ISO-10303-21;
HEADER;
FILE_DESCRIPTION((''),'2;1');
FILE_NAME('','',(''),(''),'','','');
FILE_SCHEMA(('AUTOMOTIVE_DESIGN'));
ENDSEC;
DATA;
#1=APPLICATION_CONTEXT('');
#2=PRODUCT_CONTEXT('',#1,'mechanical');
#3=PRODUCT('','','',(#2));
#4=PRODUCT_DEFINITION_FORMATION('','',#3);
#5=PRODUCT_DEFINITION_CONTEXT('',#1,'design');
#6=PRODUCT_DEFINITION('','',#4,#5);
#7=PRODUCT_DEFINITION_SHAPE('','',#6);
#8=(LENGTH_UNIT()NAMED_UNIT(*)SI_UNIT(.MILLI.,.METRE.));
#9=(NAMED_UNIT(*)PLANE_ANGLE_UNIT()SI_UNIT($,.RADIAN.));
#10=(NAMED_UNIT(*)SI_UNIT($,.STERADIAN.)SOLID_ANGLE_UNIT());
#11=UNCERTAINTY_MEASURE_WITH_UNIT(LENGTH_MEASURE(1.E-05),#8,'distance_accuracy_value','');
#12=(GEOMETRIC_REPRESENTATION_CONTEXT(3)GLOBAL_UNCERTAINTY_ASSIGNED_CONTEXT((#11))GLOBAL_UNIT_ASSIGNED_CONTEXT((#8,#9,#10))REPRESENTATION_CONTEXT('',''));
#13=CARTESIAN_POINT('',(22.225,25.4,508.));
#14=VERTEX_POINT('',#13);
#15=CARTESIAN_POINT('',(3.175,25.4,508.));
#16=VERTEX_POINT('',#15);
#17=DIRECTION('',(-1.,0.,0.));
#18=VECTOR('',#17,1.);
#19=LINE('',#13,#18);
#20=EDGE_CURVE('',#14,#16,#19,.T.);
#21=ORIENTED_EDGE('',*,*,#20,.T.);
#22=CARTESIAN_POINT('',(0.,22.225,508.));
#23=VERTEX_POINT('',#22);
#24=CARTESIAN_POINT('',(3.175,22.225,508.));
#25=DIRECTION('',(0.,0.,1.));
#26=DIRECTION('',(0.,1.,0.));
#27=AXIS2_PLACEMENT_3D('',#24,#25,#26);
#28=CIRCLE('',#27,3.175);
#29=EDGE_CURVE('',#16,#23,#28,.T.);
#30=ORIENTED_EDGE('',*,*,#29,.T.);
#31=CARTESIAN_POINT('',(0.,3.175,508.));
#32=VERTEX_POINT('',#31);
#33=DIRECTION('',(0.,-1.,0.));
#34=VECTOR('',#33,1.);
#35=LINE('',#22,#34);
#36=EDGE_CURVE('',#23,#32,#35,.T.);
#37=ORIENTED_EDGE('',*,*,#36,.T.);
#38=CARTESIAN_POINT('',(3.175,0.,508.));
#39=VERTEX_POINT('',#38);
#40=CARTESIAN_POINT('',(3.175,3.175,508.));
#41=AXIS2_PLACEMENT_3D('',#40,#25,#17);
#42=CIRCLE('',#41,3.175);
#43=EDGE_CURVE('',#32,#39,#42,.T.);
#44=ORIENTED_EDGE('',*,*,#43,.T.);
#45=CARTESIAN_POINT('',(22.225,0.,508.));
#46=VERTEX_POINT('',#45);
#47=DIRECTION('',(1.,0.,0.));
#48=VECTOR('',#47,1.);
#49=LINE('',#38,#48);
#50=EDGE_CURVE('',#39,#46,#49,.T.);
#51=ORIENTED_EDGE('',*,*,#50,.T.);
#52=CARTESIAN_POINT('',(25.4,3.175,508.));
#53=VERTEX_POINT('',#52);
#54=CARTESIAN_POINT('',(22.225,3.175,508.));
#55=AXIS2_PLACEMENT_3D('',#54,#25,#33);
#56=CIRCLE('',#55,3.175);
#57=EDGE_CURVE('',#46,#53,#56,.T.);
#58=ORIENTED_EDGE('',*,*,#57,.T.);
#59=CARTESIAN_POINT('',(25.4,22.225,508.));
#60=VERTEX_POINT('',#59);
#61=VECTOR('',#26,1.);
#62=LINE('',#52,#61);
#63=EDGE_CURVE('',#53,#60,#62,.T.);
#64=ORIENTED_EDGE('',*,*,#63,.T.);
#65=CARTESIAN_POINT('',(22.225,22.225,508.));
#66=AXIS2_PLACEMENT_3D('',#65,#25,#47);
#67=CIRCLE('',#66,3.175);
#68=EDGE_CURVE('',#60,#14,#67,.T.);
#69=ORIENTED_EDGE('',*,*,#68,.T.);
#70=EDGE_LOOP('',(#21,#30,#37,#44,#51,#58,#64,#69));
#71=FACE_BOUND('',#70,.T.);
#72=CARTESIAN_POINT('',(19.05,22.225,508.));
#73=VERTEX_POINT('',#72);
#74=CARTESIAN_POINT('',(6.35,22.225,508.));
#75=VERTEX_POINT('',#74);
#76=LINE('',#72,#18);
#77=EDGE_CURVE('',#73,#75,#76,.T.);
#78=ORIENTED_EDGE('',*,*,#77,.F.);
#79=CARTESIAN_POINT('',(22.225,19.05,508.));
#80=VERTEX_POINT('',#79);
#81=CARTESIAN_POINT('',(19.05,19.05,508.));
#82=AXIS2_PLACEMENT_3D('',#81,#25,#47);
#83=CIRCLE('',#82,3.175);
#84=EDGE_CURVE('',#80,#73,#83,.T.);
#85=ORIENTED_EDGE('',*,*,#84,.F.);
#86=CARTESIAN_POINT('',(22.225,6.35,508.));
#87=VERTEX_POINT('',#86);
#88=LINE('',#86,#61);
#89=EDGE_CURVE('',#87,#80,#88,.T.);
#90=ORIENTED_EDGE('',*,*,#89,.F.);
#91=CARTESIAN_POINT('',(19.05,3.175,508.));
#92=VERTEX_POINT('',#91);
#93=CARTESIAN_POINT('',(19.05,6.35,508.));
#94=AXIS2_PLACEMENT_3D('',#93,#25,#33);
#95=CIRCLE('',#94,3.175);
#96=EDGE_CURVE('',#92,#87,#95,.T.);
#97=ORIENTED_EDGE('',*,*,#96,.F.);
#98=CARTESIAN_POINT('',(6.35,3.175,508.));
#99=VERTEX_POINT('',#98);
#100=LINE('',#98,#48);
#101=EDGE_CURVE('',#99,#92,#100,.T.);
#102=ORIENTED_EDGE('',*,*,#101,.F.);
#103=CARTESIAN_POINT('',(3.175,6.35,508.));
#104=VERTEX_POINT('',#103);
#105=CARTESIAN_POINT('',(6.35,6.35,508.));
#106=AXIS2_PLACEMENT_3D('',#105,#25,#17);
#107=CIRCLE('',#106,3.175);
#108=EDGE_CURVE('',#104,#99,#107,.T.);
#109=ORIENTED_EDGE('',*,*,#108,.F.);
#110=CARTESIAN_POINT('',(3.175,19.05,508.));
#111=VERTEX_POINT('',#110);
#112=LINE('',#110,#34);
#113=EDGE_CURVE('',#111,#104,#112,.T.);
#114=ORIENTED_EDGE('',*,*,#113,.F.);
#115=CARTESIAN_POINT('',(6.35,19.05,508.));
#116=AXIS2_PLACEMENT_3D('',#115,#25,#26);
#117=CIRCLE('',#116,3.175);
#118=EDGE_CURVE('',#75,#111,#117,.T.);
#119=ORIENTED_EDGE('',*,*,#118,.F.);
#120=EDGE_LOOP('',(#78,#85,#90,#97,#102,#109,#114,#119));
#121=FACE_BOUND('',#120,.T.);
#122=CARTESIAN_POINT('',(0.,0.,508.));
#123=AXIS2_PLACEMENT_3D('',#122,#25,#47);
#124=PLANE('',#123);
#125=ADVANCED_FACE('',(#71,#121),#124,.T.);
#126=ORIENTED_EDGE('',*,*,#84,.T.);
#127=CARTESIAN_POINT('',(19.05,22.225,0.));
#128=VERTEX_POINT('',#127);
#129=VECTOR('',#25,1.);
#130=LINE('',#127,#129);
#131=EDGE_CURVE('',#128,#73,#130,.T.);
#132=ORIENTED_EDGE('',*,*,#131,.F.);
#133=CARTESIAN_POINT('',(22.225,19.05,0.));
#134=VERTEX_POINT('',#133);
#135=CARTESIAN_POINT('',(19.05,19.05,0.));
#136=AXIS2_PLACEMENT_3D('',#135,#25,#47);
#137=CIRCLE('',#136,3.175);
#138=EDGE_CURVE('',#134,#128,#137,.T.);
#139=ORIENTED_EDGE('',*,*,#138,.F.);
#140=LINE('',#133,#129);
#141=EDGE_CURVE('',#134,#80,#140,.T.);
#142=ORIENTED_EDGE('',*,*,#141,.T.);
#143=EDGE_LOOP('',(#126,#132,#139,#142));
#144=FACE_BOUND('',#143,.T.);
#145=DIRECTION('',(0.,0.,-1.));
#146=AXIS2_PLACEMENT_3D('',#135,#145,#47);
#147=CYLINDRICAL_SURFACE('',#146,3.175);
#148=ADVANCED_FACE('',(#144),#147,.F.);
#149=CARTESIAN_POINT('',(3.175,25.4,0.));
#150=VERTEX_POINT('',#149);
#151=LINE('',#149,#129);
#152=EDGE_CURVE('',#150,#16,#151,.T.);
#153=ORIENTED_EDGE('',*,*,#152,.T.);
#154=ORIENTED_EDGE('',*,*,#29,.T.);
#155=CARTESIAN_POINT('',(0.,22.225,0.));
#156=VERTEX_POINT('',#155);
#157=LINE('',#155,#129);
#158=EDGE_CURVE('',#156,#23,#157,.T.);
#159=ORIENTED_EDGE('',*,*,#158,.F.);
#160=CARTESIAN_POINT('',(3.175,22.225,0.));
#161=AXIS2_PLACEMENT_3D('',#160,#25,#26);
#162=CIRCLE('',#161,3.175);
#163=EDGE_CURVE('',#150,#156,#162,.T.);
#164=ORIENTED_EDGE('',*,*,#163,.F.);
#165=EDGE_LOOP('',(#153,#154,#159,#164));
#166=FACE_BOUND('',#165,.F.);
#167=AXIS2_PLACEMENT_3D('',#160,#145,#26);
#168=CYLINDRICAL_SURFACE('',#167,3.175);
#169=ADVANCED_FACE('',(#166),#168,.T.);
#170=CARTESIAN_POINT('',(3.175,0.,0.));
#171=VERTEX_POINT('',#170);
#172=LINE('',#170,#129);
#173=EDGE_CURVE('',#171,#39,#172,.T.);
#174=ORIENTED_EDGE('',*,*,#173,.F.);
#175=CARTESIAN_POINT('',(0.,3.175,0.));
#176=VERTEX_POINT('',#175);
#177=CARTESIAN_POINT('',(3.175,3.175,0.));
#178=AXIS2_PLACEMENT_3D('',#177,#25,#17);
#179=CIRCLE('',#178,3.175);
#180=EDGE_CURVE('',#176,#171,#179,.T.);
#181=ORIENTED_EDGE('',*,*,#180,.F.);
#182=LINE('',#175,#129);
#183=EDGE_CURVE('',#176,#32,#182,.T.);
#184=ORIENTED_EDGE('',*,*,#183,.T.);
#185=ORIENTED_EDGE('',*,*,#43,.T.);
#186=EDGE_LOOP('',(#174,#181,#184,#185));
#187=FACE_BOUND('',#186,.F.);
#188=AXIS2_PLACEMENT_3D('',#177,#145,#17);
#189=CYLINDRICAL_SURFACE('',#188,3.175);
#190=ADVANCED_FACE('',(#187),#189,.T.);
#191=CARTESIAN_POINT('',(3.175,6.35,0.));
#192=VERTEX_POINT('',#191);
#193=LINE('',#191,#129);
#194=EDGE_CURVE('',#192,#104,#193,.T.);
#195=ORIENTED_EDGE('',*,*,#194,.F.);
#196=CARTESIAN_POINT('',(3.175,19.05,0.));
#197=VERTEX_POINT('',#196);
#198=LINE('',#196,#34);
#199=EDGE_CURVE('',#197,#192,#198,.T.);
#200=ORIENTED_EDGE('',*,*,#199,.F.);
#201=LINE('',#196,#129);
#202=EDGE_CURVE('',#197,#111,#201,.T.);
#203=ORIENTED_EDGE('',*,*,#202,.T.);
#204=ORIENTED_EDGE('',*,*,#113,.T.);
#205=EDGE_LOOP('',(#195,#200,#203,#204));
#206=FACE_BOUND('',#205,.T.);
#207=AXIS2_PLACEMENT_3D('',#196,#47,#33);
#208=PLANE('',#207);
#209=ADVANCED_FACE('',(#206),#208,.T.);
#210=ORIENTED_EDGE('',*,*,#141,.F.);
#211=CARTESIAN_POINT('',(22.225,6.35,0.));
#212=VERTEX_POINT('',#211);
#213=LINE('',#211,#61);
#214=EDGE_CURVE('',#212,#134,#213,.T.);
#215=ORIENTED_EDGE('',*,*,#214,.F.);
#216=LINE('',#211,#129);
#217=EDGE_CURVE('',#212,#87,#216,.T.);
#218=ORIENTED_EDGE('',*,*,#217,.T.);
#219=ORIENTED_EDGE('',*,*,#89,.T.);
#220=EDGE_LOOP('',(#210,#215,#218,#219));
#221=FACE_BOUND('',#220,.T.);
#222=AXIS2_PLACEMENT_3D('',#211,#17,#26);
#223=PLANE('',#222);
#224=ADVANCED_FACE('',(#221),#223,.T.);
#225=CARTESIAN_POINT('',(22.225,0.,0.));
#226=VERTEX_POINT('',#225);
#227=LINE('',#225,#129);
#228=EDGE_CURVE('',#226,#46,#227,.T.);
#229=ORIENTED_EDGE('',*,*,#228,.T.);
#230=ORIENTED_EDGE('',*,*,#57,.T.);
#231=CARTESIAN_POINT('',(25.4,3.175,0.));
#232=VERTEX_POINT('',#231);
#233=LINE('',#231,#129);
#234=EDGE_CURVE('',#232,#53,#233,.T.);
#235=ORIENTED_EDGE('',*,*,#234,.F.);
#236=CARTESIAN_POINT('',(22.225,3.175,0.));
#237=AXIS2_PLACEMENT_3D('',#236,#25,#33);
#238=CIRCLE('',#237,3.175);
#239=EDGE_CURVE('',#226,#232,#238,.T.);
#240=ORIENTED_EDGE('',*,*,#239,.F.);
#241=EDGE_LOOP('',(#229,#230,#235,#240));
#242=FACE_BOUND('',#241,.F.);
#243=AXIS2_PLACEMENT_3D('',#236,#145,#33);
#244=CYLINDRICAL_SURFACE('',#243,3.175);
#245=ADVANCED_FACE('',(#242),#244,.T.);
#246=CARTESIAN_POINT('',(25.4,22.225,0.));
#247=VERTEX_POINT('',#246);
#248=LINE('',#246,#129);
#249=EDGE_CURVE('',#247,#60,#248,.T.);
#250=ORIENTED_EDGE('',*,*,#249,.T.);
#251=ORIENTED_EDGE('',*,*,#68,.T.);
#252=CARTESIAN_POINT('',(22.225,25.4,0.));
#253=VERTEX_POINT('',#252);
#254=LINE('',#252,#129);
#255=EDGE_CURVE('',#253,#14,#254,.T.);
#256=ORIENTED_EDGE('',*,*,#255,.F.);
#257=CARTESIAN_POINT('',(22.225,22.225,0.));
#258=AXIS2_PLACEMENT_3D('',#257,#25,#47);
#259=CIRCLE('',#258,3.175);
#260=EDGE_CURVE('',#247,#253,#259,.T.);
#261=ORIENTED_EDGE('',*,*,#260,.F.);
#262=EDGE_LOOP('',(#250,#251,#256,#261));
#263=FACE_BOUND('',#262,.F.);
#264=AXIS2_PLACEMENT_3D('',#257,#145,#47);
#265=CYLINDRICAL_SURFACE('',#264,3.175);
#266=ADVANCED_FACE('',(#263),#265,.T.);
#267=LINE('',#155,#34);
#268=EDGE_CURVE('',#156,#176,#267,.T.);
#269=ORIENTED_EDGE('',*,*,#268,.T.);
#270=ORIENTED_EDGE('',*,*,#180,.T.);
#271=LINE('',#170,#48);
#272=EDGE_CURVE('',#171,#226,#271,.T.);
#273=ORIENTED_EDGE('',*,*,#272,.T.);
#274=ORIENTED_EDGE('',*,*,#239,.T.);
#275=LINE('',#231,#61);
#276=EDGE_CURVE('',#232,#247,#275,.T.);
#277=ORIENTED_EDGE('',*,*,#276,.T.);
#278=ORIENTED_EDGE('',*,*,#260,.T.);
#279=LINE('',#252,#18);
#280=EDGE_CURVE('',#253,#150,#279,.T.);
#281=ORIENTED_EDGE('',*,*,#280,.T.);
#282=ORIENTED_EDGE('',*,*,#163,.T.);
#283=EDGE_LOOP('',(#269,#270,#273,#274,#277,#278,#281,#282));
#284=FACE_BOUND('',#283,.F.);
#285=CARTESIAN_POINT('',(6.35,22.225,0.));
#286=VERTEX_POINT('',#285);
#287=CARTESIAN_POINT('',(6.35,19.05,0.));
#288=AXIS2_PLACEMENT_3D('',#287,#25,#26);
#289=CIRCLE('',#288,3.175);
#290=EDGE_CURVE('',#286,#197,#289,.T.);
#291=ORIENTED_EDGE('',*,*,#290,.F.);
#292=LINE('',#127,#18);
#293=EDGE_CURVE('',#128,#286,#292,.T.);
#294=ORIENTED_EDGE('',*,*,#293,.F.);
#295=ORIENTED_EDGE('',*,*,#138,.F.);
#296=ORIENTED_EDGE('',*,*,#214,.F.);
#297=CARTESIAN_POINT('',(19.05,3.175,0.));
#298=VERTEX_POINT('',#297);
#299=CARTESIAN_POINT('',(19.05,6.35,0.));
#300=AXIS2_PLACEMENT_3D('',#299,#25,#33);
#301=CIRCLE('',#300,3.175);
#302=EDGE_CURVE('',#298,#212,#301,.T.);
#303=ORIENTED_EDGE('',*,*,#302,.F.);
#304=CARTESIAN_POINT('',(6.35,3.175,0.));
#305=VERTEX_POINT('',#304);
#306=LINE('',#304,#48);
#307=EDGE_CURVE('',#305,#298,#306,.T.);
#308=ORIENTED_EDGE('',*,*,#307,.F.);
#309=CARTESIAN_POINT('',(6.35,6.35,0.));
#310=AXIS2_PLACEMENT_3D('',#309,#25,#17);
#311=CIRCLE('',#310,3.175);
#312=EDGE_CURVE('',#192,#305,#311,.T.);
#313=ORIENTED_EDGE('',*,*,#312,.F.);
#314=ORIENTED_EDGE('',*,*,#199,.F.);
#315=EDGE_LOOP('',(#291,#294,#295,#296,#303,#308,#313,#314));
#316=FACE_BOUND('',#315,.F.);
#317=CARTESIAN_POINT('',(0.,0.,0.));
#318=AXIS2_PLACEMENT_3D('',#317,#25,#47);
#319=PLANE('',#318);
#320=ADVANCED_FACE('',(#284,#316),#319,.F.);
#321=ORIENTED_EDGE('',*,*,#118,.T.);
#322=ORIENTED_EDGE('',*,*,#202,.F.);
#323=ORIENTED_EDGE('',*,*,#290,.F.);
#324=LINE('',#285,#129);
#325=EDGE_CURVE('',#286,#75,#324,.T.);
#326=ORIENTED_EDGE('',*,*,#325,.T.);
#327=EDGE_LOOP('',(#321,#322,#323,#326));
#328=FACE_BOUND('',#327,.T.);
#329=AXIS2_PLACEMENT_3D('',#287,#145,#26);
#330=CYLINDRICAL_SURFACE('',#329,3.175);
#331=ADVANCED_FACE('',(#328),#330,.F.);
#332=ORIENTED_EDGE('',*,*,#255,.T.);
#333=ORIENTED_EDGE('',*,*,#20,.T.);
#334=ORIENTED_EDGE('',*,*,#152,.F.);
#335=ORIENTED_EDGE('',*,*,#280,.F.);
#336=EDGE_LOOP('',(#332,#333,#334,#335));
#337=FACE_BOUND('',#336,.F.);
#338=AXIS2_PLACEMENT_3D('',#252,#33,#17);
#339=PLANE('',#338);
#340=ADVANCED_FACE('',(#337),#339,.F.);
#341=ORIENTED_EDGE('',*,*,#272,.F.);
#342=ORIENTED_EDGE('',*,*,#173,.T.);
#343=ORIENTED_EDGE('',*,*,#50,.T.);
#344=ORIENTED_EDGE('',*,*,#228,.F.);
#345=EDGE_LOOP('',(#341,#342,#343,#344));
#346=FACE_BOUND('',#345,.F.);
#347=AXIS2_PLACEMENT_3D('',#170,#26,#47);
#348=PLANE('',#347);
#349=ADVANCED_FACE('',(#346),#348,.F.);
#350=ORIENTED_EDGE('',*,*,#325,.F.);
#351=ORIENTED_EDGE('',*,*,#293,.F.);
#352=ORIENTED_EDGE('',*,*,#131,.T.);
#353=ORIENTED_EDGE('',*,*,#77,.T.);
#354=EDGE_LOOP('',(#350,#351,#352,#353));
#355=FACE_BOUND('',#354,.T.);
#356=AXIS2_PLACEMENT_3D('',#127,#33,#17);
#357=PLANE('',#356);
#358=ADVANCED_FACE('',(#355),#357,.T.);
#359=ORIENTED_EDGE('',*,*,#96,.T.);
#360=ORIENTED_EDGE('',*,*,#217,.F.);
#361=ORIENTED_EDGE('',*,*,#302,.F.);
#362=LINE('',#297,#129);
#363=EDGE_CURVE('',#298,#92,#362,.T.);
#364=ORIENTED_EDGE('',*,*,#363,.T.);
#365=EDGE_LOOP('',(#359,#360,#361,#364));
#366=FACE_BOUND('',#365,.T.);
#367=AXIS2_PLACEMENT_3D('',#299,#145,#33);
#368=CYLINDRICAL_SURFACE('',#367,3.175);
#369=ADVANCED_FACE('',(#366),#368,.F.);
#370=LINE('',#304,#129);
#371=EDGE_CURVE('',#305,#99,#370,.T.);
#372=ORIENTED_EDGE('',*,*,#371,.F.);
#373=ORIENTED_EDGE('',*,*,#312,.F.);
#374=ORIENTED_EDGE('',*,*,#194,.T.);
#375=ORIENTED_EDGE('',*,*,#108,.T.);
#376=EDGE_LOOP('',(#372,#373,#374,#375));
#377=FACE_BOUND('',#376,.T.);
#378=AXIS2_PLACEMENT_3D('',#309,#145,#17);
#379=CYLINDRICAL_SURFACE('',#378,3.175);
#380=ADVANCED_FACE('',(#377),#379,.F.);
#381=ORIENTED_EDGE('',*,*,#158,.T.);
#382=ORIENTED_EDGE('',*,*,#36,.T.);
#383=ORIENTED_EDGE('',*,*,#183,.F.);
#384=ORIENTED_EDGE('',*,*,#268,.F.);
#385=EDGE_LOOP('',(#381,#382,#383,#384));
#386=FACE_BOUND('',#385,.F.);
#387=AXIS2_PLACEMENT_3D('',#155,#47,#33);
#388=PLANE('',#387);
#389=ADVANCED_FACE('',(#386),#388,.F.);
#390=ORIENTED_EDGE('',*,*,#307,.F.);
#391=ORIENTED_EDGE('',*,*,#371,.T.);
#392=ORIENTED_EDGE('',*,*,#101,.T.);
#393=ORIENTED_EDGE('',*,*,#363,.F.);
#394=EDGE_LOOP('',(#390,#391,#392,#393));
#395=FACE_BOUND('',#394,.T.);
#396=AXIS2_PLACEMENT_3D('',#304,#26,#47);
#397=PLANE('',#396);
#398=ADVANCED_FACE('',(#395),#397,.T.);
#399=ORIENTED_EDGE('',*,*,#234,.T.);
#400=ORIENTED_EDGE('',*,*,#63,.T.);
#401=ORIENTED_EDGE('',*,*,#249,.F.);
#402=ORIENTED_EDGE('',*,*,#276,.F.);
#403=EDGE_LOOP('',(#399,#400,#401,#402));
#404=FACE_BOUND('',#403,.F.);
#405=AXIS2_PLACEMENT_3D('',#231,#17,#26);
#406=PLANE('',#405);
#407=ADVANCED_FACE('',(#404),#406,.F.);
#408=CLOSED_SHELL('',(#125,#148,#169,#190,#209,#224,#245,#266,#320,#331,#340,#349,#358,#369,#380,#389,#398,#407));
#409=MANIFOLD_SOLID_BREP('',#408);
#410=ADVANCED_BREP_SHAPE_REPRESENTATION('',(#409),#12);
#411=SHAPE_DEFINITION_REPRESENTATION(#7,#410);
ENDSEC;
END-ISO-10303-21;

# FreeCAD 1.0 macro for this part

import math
import FreeCAD as App
import Part
import Sketcher
from FreeCAD import Vector
Q = App.Units.Quantity

doc = App.newDocument("Part")
params = doc.addObject("Spreadsheet::Sheet", "Params")
for row, (alias, value) in enumerate([
    ("sketch1_radius", "0.125 in"),
    ("pad1_length", "20 in"),
], start=1):
    params.set(f"A{row}", alias)
    params.set(f"B{row}", "=" + value)
    params.setAlias(f"B{row}", alias)

body = doc.addObject("PartDesign::Body", "Body")

# Sketch on XY plane
sketch1 = doc.addObject("Sketcher::SketchObject", "Sketch")
body.addObject(sketch1)
sketch1.AttachmentSupport = (doc.XY_Plane, [""])
sketch1.MapMode = "FlatFace"
sketch1.addGeometry(Part.ArcOfCircle(Part.Circle(Vector(3.175, 3.175, 0), Vector(0, 0, 1), 3.175), math.radians(180), math.radians(270)), False)
sketch1.addGeometry(Part.LineSegment(Vector(3.175, 0, 0), Vector(22.225, 0, 0)), False)
sketch1.addGeometry(Part.ArcOfCircle(Part.Circle(Vector(22.225, 3.175, 0), Vector(0, 0, 1), 3.175), math.radians(-90), math.radians(0)), False)
sketch1.addGeometry(Part.LineSegment(Vector(25.4, 3.175, 0), Vector(25.4, 22.225, 0)), False)
sketch1.addGeometry(Part.ArcOfCircle(Part.Circle(Vector(22.225, 22.225, 0), Vector(0, 0, 1), 3.175), math.radians(0), math.radians(90)), False)
sketch1.addGeometry(Part.LineSegment(Vector(22.225, 25.4, 0), Vector(3.175, 25.4, 0)), False)
sketch1.addGeometry(Part.ArcOfCircle(Part.Circle(Vector(3.175, 22.225, 0), Vector(0, 0, 1), 3.175), math.radians(90), math.radians(180)), False)
sketch1.addGeometry(Part.LineSegment(Vector(0, 22.225, 0), Vector(0, 3.175, 0)), False)
sketch1.addGeometry(Part.LineSegment(Vector(19.05, 3.175, 0), Vector(6.35, 3.175, 0)), False)
sketch1.addGeometry(Part.ArcOfCircle(Part.Circle(Vector(6.35, 6.35, 0), Vector(0, 0, 1), 3.175), math.radians(180), math.radians(270)), False)
sketch1.addGeometry(Part.LineSegment(Vector(3.175, 6.35, 0), Vector(3.175, 19.05, 0)), False)
sketch1.addGeometry(Part.ArcOfCircle(Part.Circle(Vector(6.35, 19.05, 0), Vector(0, 0, 1), 3.175), math.radians(90), math.radians(180)), False)
sketch1.addGeometry(Part.LineSegment(Vector(6.35, 22.225, 0), Vector(19.05, 22.225, 0)), False)
sketch1.addGeometry(Part.ArcOfCircle(Part.Circle(Vector(19.05, 19.05, 0), Vector(0, 0, 1), 3.175), math.radians(0), math.radians(90)), False)
sketch1.addGeometry(Part.LineSegment(Vector(22.225, 19.05, 0), Vector(22.225, 6.35, 0)), False)
sketch1.addGeometry(Part.ArcOfCircle(Part.Circle(Vector(19.05, 6.35, 0), Vector(0, 0, 1), 3.175), math.radians(-90), math.radians(0)), False)
sketch1.addConstraint(Sketcher.Constraint("Tangent", 0, 2, 1, 1))
sketch1.addConstraint(Sketcher.Constraint("Tangent", 1, 2, 2, 1))
sketch1.addConstraint(Sketcher.Constraint("Tangent", 2, 2, 3, 1))
sketch1.addConstraint(Sketcher.Constraint("Tangent", 3, 2, 4, 1))
sketch1.addConstraint(Sketcher.Constraint("Tangent", 4, 2, 5, 1))
sketch1.addConstraint(Sketcher.Constraint("Tangent", 5, 2, 6, 1))
sketch1.addConstraint(Sketcher.Constraint("Tangent", 6, 2, 7, 1))
sketch1.addConstraint(Sketcher.Constraint("Tangent", 7, 2, 0, 1))
sketch1.addConstraint(Sketcher.Constraint("Tangent", 8, 2, 9, 2))
sketch1.addConstraint(Sketcher.Constraint("Tangent", 9, 1, 10, 1))
sketch1.addConstraint(Sketcher.Constraint("Tangent", 10, 2, 11, 2))
sketch1.addConstraint(Sketcher.Constraint("Tangent", 11, 1, 12, 1))
sketch1.addConstraint(Sketcher.Constraint("Tangent", 12, 2, 13, 2))
sketch1.addConstraint(Sketcher.Constraint("Tangent", 13, 1, 14, 1))
sketch1.addConstraint(Sketcher.Constraint("Tangent", 14, 2, 15, 2))
sketch1.addConstraint(Sketcher.Constraint("Tangent", 15, 1, 8, 1))
sketch1.addConstraint(Sketcher.Constraint("Horizontal", 1))
sketch1.addConstraint(Sketcher.Constraint("Vertical", 3))
sketch1.addConstraint(Sketcher.Constraint("Horizontal", 5))
sketch1.addConstraint(Sketcher.Constraint("Vertical", 7))
sketch1.addConstraint(Sketcher.Constraint("Horizontal", 8))
sketch1.addConstraint(Sketcher.Constraint("Vertical", 10))
sketch1.addConstraint(Sketcher.Constraint("Horizontal", 12))
sketch1.addConstraint(Sketcher.Constraint("Vertical", 14))
sketch1.addConstraint(Sketcher.Constraint("Equal", 0, 2))
sketch1.addConstraint(Sketcher.Constraint("Equal", 2, 4))
sketch1.addConstraint(Sketcher.Constraint("Equal", 4, 6))
sketch1.addConstraint(Sketcher.Constraint("Equal", 6, 9))
sketch1.addConstraint(Sketcher.Constraint("Equal", 9, 11))
sketch1.addConstraint(Sketcher.Constraint("Equal", 11, 13))
sketch1.addConstraint(Sketcher.Constraint("Equal", 13, 15))
sketch1.addConstraint(Sketcher.Constraint("PointOnObject", 0, 2, -1))
sketch1.addConstraint(Sketcher.Constraint("PointOnObject", 6, 2, -2))
sketch1.addConstraint(Sketcher.Constraint("Horizontal", 7, 2, 8, 2))
sketch1.addConstraint(Sketcher.Constraint("Horizontal", 6, 2, 11, 1))
sketch1.addConstraint(Sketcher.Constraint("Vertical", 5, 2, 9, 1))
sketch1.addConstraint(Sketcher.Constraint("Vertical", 4, 2, 13, 1))
sketch1.addConstraint(Sketcher.Constraint("Equal", 5, 3))
sketch1.addConstraint(Sketcher.Constraint("DistanceX", -1, 1, 2, 2, Q("1 in")))
sketch1.addConstraint(Sketcher.Constraint("Radius", 0, Q("0.125 in")))
sketch1.setExpression("Constraints[39]", "Params.sketch1_radius")
pad1 = doc.addObject("PartDesign::Pad", "Pad")
body.addObject(pad1)
pad1.Profile = sketch1
pad1.setExpression("Length", "Params.pad1_length")

doc.recompute()
